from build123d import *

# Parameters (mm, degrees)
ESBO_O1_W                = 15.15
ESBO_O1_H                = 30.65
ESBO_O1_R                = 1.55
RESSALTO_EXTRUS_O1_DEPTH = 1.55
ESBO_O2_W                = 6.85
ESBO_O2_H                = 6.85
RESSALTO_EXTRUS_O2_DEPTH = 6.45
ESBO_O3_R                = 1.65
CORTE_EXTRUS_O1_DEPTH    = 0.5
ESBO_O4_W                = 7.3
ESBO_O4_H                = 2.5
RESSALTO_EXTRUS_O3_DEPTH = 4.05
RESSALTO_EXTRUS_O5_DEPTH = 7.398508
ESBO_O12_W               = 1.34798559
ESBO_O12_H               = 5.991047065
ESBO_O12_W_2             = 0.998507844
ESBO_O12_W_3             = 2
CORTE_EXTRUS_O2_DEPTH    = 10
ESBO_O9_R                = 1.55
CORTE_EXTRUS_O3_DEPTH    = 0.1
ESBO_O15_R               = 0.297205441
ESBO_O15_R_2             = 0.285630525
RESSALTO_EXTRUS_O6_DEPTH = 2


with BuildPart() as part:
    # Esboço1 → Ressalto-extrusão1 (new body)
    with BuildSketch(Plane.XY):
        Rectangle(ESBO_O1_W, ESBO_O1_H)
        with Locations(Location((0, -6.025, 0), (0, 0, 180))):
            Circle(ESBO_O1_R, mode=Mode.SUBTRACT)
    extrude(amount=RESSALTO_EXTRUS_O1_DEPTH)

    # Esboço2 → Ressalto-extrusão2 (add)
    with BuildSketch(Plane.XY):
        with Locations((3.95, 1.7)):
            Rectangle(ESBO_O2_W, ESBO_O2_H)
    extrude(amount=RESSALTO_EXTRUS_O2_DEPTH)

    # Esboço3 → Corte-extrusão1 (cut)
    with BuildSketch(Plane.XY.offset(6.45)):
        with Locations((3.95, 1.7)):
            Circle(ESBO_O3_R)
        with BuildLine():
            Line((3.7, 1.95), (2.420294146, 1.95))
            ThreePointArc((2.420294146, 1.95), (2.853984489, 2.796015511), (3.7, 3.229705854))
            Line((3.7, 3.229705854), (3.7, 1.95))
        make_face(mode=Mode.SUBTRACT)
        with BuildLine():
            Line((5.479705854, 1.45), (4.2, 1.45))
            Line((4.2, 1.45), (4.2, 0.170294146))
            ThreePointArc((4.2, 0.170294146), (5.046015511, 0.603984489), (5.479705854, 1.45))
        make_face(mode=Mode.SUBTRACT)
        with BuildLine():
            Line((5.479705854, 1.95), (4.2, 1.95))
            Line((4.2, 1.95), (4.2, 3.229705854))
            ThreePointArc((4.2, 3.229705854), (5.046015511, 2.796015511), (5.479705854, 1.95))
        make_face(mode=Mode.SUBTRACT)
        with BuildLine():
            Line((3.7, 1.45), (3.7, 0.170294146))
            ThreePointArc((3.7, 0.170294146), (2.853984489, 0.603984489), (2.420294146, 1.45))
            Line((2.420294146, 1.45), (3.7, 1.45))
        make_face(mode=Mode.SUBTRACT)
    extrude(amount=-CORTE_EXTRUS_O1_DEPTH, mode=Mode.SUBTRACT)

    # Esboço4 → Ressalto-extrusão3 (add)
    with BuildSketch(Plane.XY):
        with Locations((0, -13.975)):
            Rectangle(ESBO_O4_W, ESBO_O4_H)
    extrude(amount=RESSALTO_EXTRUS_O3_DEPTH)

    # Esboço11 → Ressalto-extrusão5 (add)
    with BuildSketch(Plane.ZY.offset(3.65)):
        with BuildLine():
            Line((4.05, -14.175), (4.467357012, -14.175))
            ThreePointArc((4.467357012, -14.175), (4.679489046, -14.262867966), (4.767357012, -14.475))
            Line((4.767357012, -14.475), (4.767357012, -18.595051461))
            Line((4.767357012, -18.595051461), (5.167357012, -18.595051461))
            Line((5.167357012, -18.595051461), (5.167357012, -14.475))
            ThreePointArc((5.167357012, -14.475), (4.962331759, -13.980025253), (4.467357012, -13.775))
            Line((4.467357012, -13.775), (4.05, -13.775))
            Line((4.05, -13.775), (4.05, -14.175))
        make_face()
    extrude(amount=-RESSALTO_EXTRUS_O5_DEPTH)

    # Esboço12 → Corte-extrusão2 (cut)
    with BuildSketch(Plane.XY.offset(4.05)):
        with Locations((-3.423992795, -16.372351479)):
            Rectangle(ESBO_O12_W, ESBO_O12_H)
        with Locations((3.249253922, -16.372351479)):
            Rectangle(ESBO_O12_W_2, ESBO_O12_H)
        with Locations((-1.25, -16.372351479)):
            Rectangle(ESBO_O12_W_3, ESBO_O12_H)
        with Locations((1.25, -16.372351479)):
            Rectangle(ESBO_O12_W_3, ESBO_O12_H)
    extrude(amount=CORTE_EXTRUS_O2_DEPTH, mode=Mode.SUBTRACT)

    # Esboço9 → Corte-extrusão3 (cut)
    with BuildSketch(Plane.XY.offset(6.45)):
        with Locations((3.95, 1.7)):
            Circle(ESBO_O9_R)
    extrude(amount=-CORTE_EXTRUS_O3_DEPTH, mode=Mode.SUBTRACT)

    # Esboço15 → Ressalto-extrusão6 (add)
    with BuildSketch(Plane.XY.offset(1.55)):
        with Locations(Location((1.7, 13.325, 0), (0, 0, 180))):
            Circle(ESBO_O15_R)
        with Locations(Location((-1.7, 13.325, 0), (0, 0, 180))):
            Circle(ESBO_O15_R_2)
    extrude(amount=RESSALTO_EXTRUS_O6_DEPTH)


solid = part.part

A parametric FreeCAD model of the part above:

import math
import FreeCAD as App
import Part
import Sketcher

V = App.Vector

doc = App.newDocument("Part")
body = doc.addObject("PartDesign::Body", "Body")

# Sketch on XY plane
sketch1 = body.newObject("Sketcher::SketchObject", "Sketch")
sketch1.AttachmentSupport = (doc.getObject("XY_Plane"), [""])
sketch1.MapMode = "FlatFace"
sketch1.addGeometry([
    Part.LineSegment(V(-7.575, 15.325, 0), V(-7.575, -15.325, 0)),  # 0
    Part.LineSegment(V(-7.575, -15.325, 0), V(7.575, -15.325, 0)),  # 1
    Part.LineSegment(V(7.575, -15.325, 0), V(7.575, 15.325, 0)),  # 2
    Part.LineSegment(V(7.575, 15.325, 0), V(-7.575, 15.325, 0)),  # 3
    Part.Circle(V(0, -6.025, 0), V(0, 0, 1), 1.55),  # 4
], False)
sketch1.addConstraint([
    Sketcher.Constraint("Coincident", 0, 2, 1, 1),
    Sketcher.Constraint("Coincident", 1, 2, 2, 1),
    Sketcher.Constraint("Coincident", 2, 2, 3, 1),
    Sketcher.Constraint("Coincident", 3, 2, 0, 1),
    Sketcher.Constraint("Vertical", 0),
    Sketcher.Constraint("Horizontal", 1),
    Sketcher.Constraint("Vertical", 2),
    Sketcher.Constraint("Horizontal", 3),
    Sketcher.Constraint("Symmetric", 0, 2, 2, 2, -1, 1),
    Sketcher.Constraint("PointOnObject", 4, 3, -2),
    Sketcher.Constraint("Diameter", 4, 3.1),
    Sketcher.Constraint("DistanceX", 1, 1, 1, 2, 15.15),
    Sketcher.Constraint("DistanceY", 0, 2, 0, 1, 30.65),
    Sketcher.Constraint("DistanceY", 0, 2, 4, 3, 9.3),
])
pad1 = body.newObject("PartDesign::Pad", "Pad")
pad1.Profile = sketch1
pad1.Length = 1.55

# Sketch on XY plane
sketch2 = body.newObject("Sketcher::SketchObject", "Sketch001")
sketch2.AttachmentSupport = (doc.getObject("XY_Plane"), [""])
sketch2.MapMode = "FlatFace"
sketch2.addGeometry([
    Part.LineSegment(V(0.525, 5.125, 0), V(0.525, -1.725, 0)),
    Part.LineSegment(V(0.525, -1.725, 0), V(7.375, -1.725, 0)),
    Part.LineSegment(V(7.375, -1.725, 0), V(7.375, 5.125, 0)),
    Part.LineSegment(V(7.375, 5.125, 0), V(0.525, 5.125, 0)),
], False)
sketch2.addConstraint([
    Sketcher.Constraint("Coincident", 0, 2, 1, 1),
    Sketcher.Constraint("Coincident", 1, 2, 2, 1),
    Sketcher.Constraint("Coincident", 2, 2, 3, 1),
    Sketcher.Constraint("Coincident", 3, 2, 0, 1),
    Sketcher.Constraint("Vertical", 0),
    Sketcher.Constraint("Horizontal", 1),
    Sketcher.Constraint("Vertical", 2),
    Sketcher.Constraint("Horizontal", 3),
    Sketcher.Constraint("Equal", 3, 0),
    Sketcher.Constraint("DistanceX", 1, 1, 1, 2, 6.85),
    Sketcher.Constraint("DistanceX", -1, 1, 0, 2, 0.525),
    Sketcher.Constraint("DistanceY", 0, 2, -1, 1, 1.725),
])
pad2 = body.newObject("PartDesign::Pad", "Pad001")
pad2.Profile = sketch2
pad2.Length = 6.45

# Sketch on XY plane
sketch3 = body.newObject("Sketcher::SketchObject", "Sketch002")
sketch3.AttachmentSupport = (doc.getObject("XY_Plane"), [""])
sketch3.MapMode = "FlatFace"
sketch3.AttachmentOffset = App.Placement(V(0, 0, 6.45), App.Rotation())
sketch3.addGeometry([
    Part.Circle(V(3.95, 1.7, 0), V(0, 0, 1), 1.65),  # 0
    Part.LineSegment(V(2.420294, 1.45, 0), V(3.7, 1.45, 0)),  # 1
    Part.LineSegment(V(3.7, 1.45, 0), V(3.7, 0.170294, 0)),  # 2
    Part.ArcOfCircle(Part.Circle(V(3.95, 1.7, 0), V(0, 0, 1), 1.55), math.radians(-170.718201), math.radians(-99.281799)),  # 3
    Part.LineSegment(V(4.2, 1.45, 0), V(5.479706, 1.45, 0)),  # 4
    Part.ArcOfCircle(Part.Circle(V(3.95, 1.7, 0), V(0, 0, 1), 1.55), math.radians(-80.718201), math.radians(-9.281799)),  # 5
    Part.LineSegment(V(4.2, 0.170294, 0), V(4.2, 1.45, 0)),  # 6
    Part.LineSegment(V(3.7, 3.229706, 0), V(3.7, 1.95, 0)),  # 7
    Part.LineSegment(V(3.7, 1.95, 0), V(2.420294, 1.95, 0)),  # 8
    Part.ArcOfCircle(Part.Circle(V(3.95, 1.7, 0), V(0, 0, 1), 1.55), math.radians(99.281799), math.radians(170.718201)),  # 9
    Part.ArcOfCircle(Part.Circle(V(3.95, 1.7, 0), V(0, 0, 1), 1.55), math.radians(9.281799), math.radians(80.718201)),  # 10
    Part.LineSegment(V(5.479706, 1.95, 0), V(4.2, 1.95, 0)),  # 11
    Part.LineSegment(V(4.2, 1.95, 0), V(4.2, 3.229706, 0)),  # 12
], False)
sketch3.addConstraint([
    Sketcher.Constraint("Coincident", 1, 2, 2, 1),
    Sketcher.Constraint("Coincident", 2, 2, 3, 2),
    Sketcher.Constraint("Coincident", 3, 1, 1, 1),
    Sketcher.Constraint("Coincident", 4, 2, 5, 2),
    Sketcher.Constraint("Coincident", 5, 1, 6, 1),
    Sketcher.Constraint("Coincident", 6, 2, 4, 1),
    Sketcher.Constraint("Coincident", 7, 2, 8, 1),
    Sketcher.Constraint("Coincident", 8, 2, 9, 2),
    Sketcher.Constraint("Coincident", 9, 1, 7, 1),
    Sketcher.Constraint("Coincident", 10, 1, 11, 1),
    Sketcher.Constraint("Coincident", 11, 2, 12, 1),
    Sketcher.Constraint("Coincident", 12, 2, 10, 2),
    Sketcher.Constraint("Horizontal", 1),
    Sketcher.Constraint("Vertical", 2),
    Sketcher.Constraint("Horizontal", 4),
    Sketcher.Constraint("Vertical", 6),
    Sketcher.Constraint("Vertical", 7),
    Sketcher.Constraint("Horizontal", 8),
    Sketcher.Constraint("Horizontal", 11),
    Sketcher.Constraint("Vertical", 12),
    Sketcher.Constraint("Coincident", 3, 3, 0, 3),
    Sketcher.Constraint("Coincident", 5, 3, 0, 3),
    Sketcher.Constraint("Coincident", 9, 3, 0, 3),
    Sketcher.Constraint("Coincident", 10, 3, 0, 3),
    Sketcher.Constraint("Equal", 3, 5),
    Sketcher.Constraint("Equal", 5, 9),
    Sketcher.Constraint("Equal", 9, 10),
    Sketcher.Constraint("Horizontal", 3, 1, 4, 2),
    Sketcher.Constraint("Horizontal", 2, 2, 5, 1),
    Sketcher.Constraint("Horizontal", 8, 2, 10, 1),
    Sketcher.Constraint("Horizontal", 9, 1, 12, 2),
    Sketcher.Constraint("Vertical", 2, 2, 7, 2),
    Sketcher.Constraint("Vertical", 3, 1, 8, 2),
    Sketcher.Constraint("Equal", 11, 2),
    Sketcher.Constraint("Diameter", 0, 3.3),
    Sketcher.Constraint("Radius", 3, 1.55),
    Sketcher.Constraint("DistanceY", -1, 1, 0, 3, 1.7),
    Sketcher.Constraint("DistanceX", -1, 1, 1, 2, 3.7),
    Sketcher.Constraint("DistanceX", -1, 1, 5, 1, 4.2),
])
pocket1 = body.newObject("PartDesign::Pocket", "Pocket")
pocket1.Profile = sketch3
pocket1.Length = 0.5

# Sketch on XY plane
sketch4 = body.newObject("Sketcher::SketchObject", "Sketch003")
sketch4.AttachmentSupport = (doc.getObject("XY_Plane"), [""])
sketch4.MapMode = "FlatFace"
sketch4.addGeometry([
    Part.LineSegment(V(-3.65, -12.725, 0), V(-3.65, -15.225, 0)),
    Part.LineSegment(V(-3.65, -15.225, 0), V(3.65, -15.225, 0)),
    Part.LineSegment(V(3.65, -15.225, 0), V(3.65, -12.725, 0)),
    Part.LineSegment(V(3.65, -12.725, 0), V(-3.65, -12.725, 0)),
], False)
sketch4.addConstraint([
    Sketcher.Constraint("Coincident", 0, 2, 1, 1),
    Sketcher.Constraint("Coincident", 1, 2, 2, 1),
    Sketcher.Constraint("Coincident", 2, 2, 3, 1),
    Sketcher.Constraint("Coincident", 3, 2, 0, 1),
    Sketcher.Constraint("Vertical", 0),
    Sketcher.Constraint("Horizontal", 1),
    Sketcher.Constraint("Vertical", 2),
    Sketcher.Constraint("Horizontal", 3),
    Sketcher.Constraint("DistanceX", 1, 1, 1, 2, 7.3),
    Sketcher.Constraint("DistanceY", 0, 2, 0, 1, 2.5),
    Sketcher.Constraint("DistanceX", 0, 2, -1, 1, 3.65),
    Sketcher.Constraint("DistanceY", 0, 2, -1, 1, 15.225),
])
pad3 = body.newObject("PartDesign::Pad", "Pad002")
pad3.Profile = sketch4
pad3.Length = 4.05

# Sketch on YZ plane
sketch5 = body.newObject("Sketcher::SketchObject", "Sketch004")
sketch5.AttachmentSupport = (doc.getObject("YZ_Plane"), [""])
sketch5.MapMode = "FlatFace"
sketch5.AttachmentOffset = App.Placement(V(0, 0, -3.65), App.Rotation())
sketch5.addGeometry([
    Part.LineSegment(V(-14.175, 4.05, 0), V(-14.175, 4.467357, 0)),  # 0
    Part.ArcOfCircle(Part.Circle(V(-14.475, 4.467357, 0), V(0, 0, 1), 0.3), math.radians(0), math.radians(90)),  # 1
    Part.LineSegment(V(-14.475, 4.767357, 0), V(-18.595051, 4.767357, 0)),  # 2
    Part.LineSegment(V(-18.595051, 4.767357, 0), V(-18.595051, 5.167357, 0)),  # 3
    Part.LineSegment(V(-18.595051, 5.167357, 0), V(-14.475, 5.167357, 0)),  # 4
    Part.ArcOfCircle(Part.Circle(V(-14.475, 4.467357, 0), V(0, 0, 1), 0.7), math.radians(0), math.radians(90)),  # 5
    Part.LineSegment(V(-13.775, 4.467357, 0), V(-13.775, 4.05, 0)),  # 6
    Part.LineSegment(V(-13.775, 4.05, 0), V(-14.175, 4.05, 0)),  # 7
], False)
sketch5.addConstraint([
    Sketcher.Constraint("Tangent", 0, 2, 1, 1),
    Sketcher.Constraint("Tangent", 1, 2, 2, 1),
    Sketcher.Constraint("Coincident", 2, 2, 3, 1),
    Sketcher.Constraint("Coincident", 3, 2, 4, 1),
    Sketcher.Constraint("Tangent", 4, 2, 5, 2),
    Sketcher.Constraint("Tangent", 5, 1, 6, 1),
    Sketcher.Constraint("Coincident", 6, 2, 7, 1),
    Sketcher.Constraint("Coincident", 7, 2, 0, 1),
    Sketcher.Constraint("Vertical", 0),
    Sketcher.Constraint("Horizontal", 2),
    Sketcher.Constraint("Vertical", 3),
    Sketcher.Constraint("Horizontal", 4),
    Sketcher.Constraint("Vertical", 6),
    Sketcher.Constraint("Horizontal", 7),
    Sketcher.Constraint("Coincident", 5, 3, 1, 3),
    Sketcher.Constraint("Radius", 1, 0.3),
    Sketcher.Constraint("Radius", 5, 0.7),
    Sketcher.Constraint("DistanceY", -1, 1, 6, 2, 4.05),
    Sketcher.Constraint("DistanceX", 1, 3, -1, 1, 14.475),
    Sketcher.Constraint("DistanceX", 2, 2, 2, 1, 4.120051),
    Sketcher.Constraint("DistanceY", 0, 1, 0, 2, 0.417357),
])
pad4 = body.newObject("PartDesign::Pad", "Pad003")
pad4.Profile = sketch5
pad4.Length = 7.398508

# Sketch on XY plane
sketch6 = body.newObject("Sketcher::SketchObject", "Sketch005")
sketch6.AttachmentSupport = (doc.getObject("XY_Plane"), [""])
sketch6.MapMode = "FlatFace"
sketch6.AttachmentOffset = App.Placement(V(0, 0, 4.05), App.Rotation())
sketch6.addGeometry([
    Part.LineSegment(V(-4.097986, -13.376828, 0), V(-4.097986, -19.367875, 0)),  # 0
    Part.LineSegment(V(-4.097986, -19.367875, 0), V(-2.75, -19.367875, 0)),  # 1
    Part.LineSegment(V(-2.75, -19.367875, 0), V(-2.75, -13.376828, 0)),  # 2
    Part.LineSegment(V(-2.75, -13.376828, 0), V(-4.097986, -13.376828, 0)),  # 3
    Part.LineSegment(V(2.75, -13.376828, 0), V(2.75, -19.367875, 0)),  # 4
    Part.LineSegment(V(2.75, -19.367875, 0), V(3.748508, -19.367875, 0)),  # 5
    Part.LineSegment(V(3.748508, -19.367875, 0), V(3.748508, -13.376828, 0)),  # 6
    Part.LineSegment(V(3.748508, -13.376828, 0), V(2.75, -13.376828, 0)),  # 7
    Part.LineSegment(V(-2.25, -13.376828, 0), V(-2.25, -19.367875, 0)),  # 8
    Part.LineSegment(V(-2.25, -19.367875, 0), V(-0.25, -19.367875, 0)),  # 9
    Part.LineSegment(V(-0.25, -19.367875, 0), V(-0.25, -13.376828, 0)),  # 10
    Part.LineSegment(V(-0.25, -13.376828, 0), V(-2.25, -13.376828, 0)),  # 11
    Part.LineSegment(V(0.25, -13.376828, 0), V(0.25, -19.367875, 0)),  # 12
    Part.LineSegment(V(0.25, -19.367875, 0), V(2.25, -19.367875, 0)),  # 13
    Part.LineSegment(V(2.25, -19.367875, 0), V(2.25, -13.376828, 0)),  # 14
    Part.LineSegment(V(2.25, -13.376828, 0), V(0.25, -13.376828, 0)),  # 15
], False)
sketch6.addConstraint([
    Sketcher.Constraint("Coincident", 0, 2, 1, 1),
    Sketcher.Constraint("Coincident", 1, 2, 2, 1),
    Sketcher.Constraint("Coincident", 2, 2, 3, 1),
    Sketcher.Constraint("Coincident", 3, 2, 0, 1),
    Sketcher.Constraint("Coincident", 4, 2, 5, 1),
    Sketcher.Constraint("Coincident", 5, 2, 6, 1),
    Sketcher.Constraint("Coincident", 6, 2, 7, 1),
    Sketcher.Constraint("Coincident", 7, 2, 4, 1),
    Sketcher.Constraint("Coincident", 8, 2, 9, 1),
    Sketcher.Constraint("Coincident", 9, 2, 10, 1),
    Sketcher.Constraint("Coincident", 10, 2, 11, 1),
    Sketcher.Constraint("Coincident", 11, 2, 8, 1),
    Sketcher.Constraint("Coincident", 12, 2, 13, 1),
    Sketcher.Constraint("Coincident", 13, 2, 14, 1),
    Sketcher.Constraint("Coincident", 14, 2, 15, 1),
    Sketcher.Constraint("Coincident", 15, 2, 12, 1),
    Sketcher.Constraint("Vertical", 0),
    Sketcher.Constraint("Horizontal", 1),
    Sketcher.Constraint("Vertical", 2),
    Sketcher.Constraint("Horizontal", 3),
    Sketcher.Constraint("Vertical", 4),
    Sketcher.Constraint("Horizontal", 5),
    Sketcher.Constraint("Vertical", 6),
    Sketcher.Constraint("Horizontal", 7),
    Sketcher.Constraint("Vertical", 8),
    Sketcher.Constraint("Horizontal", 9),
    Sketcher.Constraint("Vertical", 10),
    Sketcher.Constraint("Horizontal", 11),
    Sketcher.Constraint("Vertical", 12),
    Sketcher.Constraint("Horizontal", 13),
    Sketcher.Constraint("Vertical", 14),
    Sketcher.Constraint("Horizontal", 15),
    Sketcher.Constraint("Symmetric", 1, 2, 4, 2, -2),
    Sketcher.Constraint("Symmetric", 9, 2, 12, 2, -2),
    Sketcher.Constraint("Symmetric", 11, 2, 14, 2, -2),
    Sketcher.Constraint("Horizontal", 3, 2, 6, 2),
    Sketcher.Constraint("Horizontal", 5, 2, 8, 2),
    Sketcher.Constraint("Horizontal", 7, 2, 10, 2),
    Sketcher.Constraint("DistanceX", 9, 1, 9, 2, 2.0),
    Sketcher.Constraint("DistanceX", 8, 2, 4, 2, 5.0),
    Sketcher.Constraint("DistanceX", 1, 2, 4, 2, 5.5),
    Sketcher.Constraint("DistanceX", 1, 1, 1, 2, 1.347986),
    Sketcher.Constraint("DistanceX", 5, 1, 5, 2, 0.998508),
    Sketcher.Constraint("DistanceY", 0, 2, 0, 1, 5.991047),
    Sketcher.Constraint("DistanceY", 0, 2, -1, 1, 19.367875),
])
pocket2 = body.newObject("PartDesign::Pocket", "Pocket001")
pocket2.Profile = sketch6
pocket2.Length = 10
pocket2.Reversed = True

# Sketch on XY plane
sketch7 = body.newObject("Sketcher::SketchObject", "Sketch006")
sketch7.AttachmentSupport = (doc.getObject("XY_Plane"), [""])
sketch7.MapMode = "FlatFace"
sketch7.AttachmentOffset = App.Placement(V(0, 0, 6.45), App.Rotation())
sketch7.addGeometry(Part.Circle(V(3.95, 1.7, 0), V(0, 0, 1), 1.55), False)
sketch7.addConstraint([
    Sketcher.Constraint("Diameter", 0, 3.1),
    Sketcher.Constraint("DistanceY", -1, 1, 0, 3, 1.7),
    Sketcher.Constraint("DistanceX", -1, 1, 0, 3, 3.95),
])
pocket3 = body.newObject("PartDesign::Pocket", "Pocket002")
pocket3.Profile = sketch7
pocket3.Length = 0.1

# Sketch on XY plane
sketch8 = body.newObject("Sketcher::SketchObject", "Sketch007")
sketch8.AttachmentSupport = (doc.getObject("XY_Plane"), [""])
sketch8.MapMode = "FlatFace"
sketch8.AttachmentOffset = App.Placement(V(0, 0, 1.55), App.Rotation())
sketch8.addGeometry([
    Part.Circle(V(1.7, 13.325, 0), V(0, 0, 1), 0.297205),
    Part.Circle(V(-1.7, 13.325, 0), V(0, 0, 1), 0.285631),
], False)
sketch8.addConstraint([
    Sketcher.Constraint("Symmetric", 0, 3, 1, 3, -2),
    Sketcher.Constraint("DistanceX", -1, 1, 0, 3, 1.7),
    Sketcher.Constraint("Diameter", 0, 0.594411),
    Sketcher.Constraint("Diameter", 1, 0.571261),
    Sketcher.Constraint("DistanceY", -1, 1, 0, 3, 13.325),
])
pad5 = body.newObject("PartDesign::Pad", "Pad004")
pad5.Profile = sketch8
pad5.Length = 2

doc.recompute()
